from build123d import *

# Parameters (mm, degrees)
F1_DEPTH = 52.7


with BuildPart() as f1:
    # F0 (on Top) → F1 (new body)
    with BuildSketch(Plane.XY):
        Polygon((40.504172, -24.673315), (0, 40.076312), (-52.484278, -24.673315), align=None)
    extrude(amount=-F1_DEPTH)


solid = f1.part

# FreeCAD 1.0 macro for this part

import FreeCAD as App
import Part
import Sketcher
Q = App.Units.Quantity

doc = App.newDocument("Part")
body = doc.addObject("PartDesign::Body", "Body")

sketch1 = body.newObject("Sketcher::SketchObject", "Sketch")
sketch1.AttachmentSupport = (doc.getObject("XY_Plane"), [""])
sketch1.MapMode = "FlatFace"
sketch1.addGeometry([
    Part.LineSegment(App.Vector(41, -25, 0), App.Vector(0, 40, 0)),
    Part.LineSegment(App.Vector(0, 40, 0), App.Vector(-52, -25, 0)),
    Part.LineSegment(App.Vector(-52, -25, 0), App.Vector(41, -25, 0)),
], False)
sketch1.addConstraint([
    Sketcher.Constraint("Coincident", 0, 2, 1, 1),
    Sketcher.Constraint("Coincident", 1, 2, 2, 1),
    Sketcher.Constraint("Coincident", 2, 2, 0, 1),
    Sketcher.Constraint("Horizontal", 2),
    Sketcher.Constraint("PointOnObject", 0, 2, -2),
    Sketcher.Constraint("DistanceX", 2, 1, 2, 2, Q("92.98845 mm")),
    Sketcher.Constraint("Distance", 0, Q("76.374748 mm")),
    Sketcher.Constraint("DistanceX", 1, 2, -1, 1, Q("52.484278 mm")),
    Sketcher.Constraint("DistanceY", -1, 1, 0, 2, Q("40.076312 mm")),
])
pad1 = body.newObject("PartDesign::Pad", "Pad")
pad1.Profile = sketch1
pad1.Length = 52.7
pad1.Reversed = True

doc.recompute()
